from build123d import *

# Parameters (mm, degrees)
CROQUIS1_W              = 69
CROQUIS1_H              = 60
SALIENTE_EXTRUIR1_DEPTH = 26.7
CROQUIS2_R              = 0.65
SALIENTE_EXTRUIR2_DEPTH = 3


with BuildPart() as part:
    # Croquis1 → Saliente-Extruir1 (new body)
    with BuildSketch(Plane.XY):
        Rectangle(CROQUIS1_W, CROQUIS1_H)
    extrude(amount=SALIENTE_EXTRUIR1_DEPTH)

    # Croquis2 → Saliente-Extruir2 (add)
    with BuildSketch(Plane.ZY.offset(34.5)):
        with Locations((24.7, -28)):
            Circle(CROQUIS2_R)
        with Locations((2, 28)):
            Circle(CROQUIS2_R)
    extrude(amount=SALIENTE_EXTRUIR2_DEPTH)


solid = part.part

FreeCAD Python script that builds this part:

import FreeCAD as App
import Part
import Sketcher


def add_polygon(sketch, points):
    """Adds a closed chain of lines whose ends are joined by coincident constraints."""
    first, n = sketch.GeometryCount, len(points)
    for a, b in zip(points, points[1:] + points[:1]):
        sketch.addGeometry(Part.LineSegment(App.Vector(*a, 0), App.Vector(*b, 0)), False)
    for i in range(n):
        sketch.addConstraint(Sketcher.Constraint("Coincident", first + i, 2, first + (i + 1) % n, 1))

doc = App.newDocument("Part")
params = doc.addObject("Spreadsheet::Sheet", "Params")
for row, (alias, value) in enumerate([
    ("sketch1_width", "69 mm"),
    ("sketch1_height", "60 mm"),
    ("pad1_length", "26.7 mm"),
    ("sketch2_diameter", "1.3 mm"),
    ("pad2_length", "3 mm"),
], start=1):
    params.set(f"A{row}", alias)
    params.set(f"B{row}", "=" + value)
    params.setAlias(f"B{row}", alias)

body = doc.addObject("PartDesign::Body", "Body")

# Sketch on XY plane
sketch1 = body.newObject("Sketcher::SketchObject", "Sketch")
sketch1.AttachmentSupport = (doc.getObject("XY_Plane"), [""])
sketch1.MapMode = "FlatFace"
add_polygon(sketch1, [(-34, 30), (-34, -30), (34, -30), (34, 30)])  # lines 0-3
sketch1.addConstraint(Sketcher.Constraint("Vertical", 0))
sketch1.addConstraint(Sketcher.Constraint("Horizontal", 1))
sketch1.addConstraint(Sketcher.Constraint("Vertical", 2))
sketch1.addConstraint(Sketcher.Constraint("Horizontal", 3))
sketch1.addConstraint(Sketcher.Constraint("Symmetric", 0, 2, 2, 2, -1, 1))
sketch1.addConstraint(Sketcher.Constraint("DistanceX", 1, 1, 1, 2, 69.0))
sketch1.addConstraint(Sketcher.Constraint("DistanceY", 0, 2, 0, 1, 60.0))
sketch1.setExpression("Constraints[9]", "Params.sketch1_width")
sketch1.setExpression("Constraints[10]", "Params.sketch1_height")
pad1 = body.newObject("PartDesign::Pad", "Pad")
pad1.Profile = sketch1
pad1.setExpression("Length", "Params.pad1_length")

# Sketch on YZ plane
sketch2 = body.newObject("Sketcher::SketchObject", "Sketch001")
sketch2.AttachmentSupport = (doc.getObject("YZ_Plane"), [""])
sketch2.MapMode = "FlatFace"
sketch2.AttachmentOffset = App.Placement(App.Vector(0, 0, -34.5), App.Rotation())
sketch2.addGeometry(Part.Circle(App.Vector(-28, 24.7, 0), App.Vector(0, 0, 1), 0.7), False)
sketch2.addGeometry(Part.Circle(App.Vector(28, 2, 0), App.Vector(0, 0, 1), 0.7), False)
sketch2.addConstraint(Sketcher.Constraint("Equal", 0, 1))
sketch2.addConstraint(Sketcher.Constraint("Diameter", 0, 1.3))
sketch2.addConstraint(Sketcher.Constraint("DistanceX", 0, 3, -1, 1, 28.0))
sketch2.addConstraint(Sketcher.Constraint("DistanceX", -1, 1, 1, 3, 28.0))
sketch2.addConstraint(Sketcher.Constraint("DistanceY", -1, 1, 1, 3, 2.0))
sketch2.addConstraint(Sketcher.Constraint("DistanceY", -1, 1, 0, 3, 24.7))
sketch2.setExpression("Constraints[1]", "Params.sketch2_diameter")
pad2 = body.newObject("PartDesign::Pad", "Pad001")
pad2.Profile = sketch2
pad2.setExpression("Length", "Params.pad2_length")
pad2.Reversed = True

doc.recompute()
